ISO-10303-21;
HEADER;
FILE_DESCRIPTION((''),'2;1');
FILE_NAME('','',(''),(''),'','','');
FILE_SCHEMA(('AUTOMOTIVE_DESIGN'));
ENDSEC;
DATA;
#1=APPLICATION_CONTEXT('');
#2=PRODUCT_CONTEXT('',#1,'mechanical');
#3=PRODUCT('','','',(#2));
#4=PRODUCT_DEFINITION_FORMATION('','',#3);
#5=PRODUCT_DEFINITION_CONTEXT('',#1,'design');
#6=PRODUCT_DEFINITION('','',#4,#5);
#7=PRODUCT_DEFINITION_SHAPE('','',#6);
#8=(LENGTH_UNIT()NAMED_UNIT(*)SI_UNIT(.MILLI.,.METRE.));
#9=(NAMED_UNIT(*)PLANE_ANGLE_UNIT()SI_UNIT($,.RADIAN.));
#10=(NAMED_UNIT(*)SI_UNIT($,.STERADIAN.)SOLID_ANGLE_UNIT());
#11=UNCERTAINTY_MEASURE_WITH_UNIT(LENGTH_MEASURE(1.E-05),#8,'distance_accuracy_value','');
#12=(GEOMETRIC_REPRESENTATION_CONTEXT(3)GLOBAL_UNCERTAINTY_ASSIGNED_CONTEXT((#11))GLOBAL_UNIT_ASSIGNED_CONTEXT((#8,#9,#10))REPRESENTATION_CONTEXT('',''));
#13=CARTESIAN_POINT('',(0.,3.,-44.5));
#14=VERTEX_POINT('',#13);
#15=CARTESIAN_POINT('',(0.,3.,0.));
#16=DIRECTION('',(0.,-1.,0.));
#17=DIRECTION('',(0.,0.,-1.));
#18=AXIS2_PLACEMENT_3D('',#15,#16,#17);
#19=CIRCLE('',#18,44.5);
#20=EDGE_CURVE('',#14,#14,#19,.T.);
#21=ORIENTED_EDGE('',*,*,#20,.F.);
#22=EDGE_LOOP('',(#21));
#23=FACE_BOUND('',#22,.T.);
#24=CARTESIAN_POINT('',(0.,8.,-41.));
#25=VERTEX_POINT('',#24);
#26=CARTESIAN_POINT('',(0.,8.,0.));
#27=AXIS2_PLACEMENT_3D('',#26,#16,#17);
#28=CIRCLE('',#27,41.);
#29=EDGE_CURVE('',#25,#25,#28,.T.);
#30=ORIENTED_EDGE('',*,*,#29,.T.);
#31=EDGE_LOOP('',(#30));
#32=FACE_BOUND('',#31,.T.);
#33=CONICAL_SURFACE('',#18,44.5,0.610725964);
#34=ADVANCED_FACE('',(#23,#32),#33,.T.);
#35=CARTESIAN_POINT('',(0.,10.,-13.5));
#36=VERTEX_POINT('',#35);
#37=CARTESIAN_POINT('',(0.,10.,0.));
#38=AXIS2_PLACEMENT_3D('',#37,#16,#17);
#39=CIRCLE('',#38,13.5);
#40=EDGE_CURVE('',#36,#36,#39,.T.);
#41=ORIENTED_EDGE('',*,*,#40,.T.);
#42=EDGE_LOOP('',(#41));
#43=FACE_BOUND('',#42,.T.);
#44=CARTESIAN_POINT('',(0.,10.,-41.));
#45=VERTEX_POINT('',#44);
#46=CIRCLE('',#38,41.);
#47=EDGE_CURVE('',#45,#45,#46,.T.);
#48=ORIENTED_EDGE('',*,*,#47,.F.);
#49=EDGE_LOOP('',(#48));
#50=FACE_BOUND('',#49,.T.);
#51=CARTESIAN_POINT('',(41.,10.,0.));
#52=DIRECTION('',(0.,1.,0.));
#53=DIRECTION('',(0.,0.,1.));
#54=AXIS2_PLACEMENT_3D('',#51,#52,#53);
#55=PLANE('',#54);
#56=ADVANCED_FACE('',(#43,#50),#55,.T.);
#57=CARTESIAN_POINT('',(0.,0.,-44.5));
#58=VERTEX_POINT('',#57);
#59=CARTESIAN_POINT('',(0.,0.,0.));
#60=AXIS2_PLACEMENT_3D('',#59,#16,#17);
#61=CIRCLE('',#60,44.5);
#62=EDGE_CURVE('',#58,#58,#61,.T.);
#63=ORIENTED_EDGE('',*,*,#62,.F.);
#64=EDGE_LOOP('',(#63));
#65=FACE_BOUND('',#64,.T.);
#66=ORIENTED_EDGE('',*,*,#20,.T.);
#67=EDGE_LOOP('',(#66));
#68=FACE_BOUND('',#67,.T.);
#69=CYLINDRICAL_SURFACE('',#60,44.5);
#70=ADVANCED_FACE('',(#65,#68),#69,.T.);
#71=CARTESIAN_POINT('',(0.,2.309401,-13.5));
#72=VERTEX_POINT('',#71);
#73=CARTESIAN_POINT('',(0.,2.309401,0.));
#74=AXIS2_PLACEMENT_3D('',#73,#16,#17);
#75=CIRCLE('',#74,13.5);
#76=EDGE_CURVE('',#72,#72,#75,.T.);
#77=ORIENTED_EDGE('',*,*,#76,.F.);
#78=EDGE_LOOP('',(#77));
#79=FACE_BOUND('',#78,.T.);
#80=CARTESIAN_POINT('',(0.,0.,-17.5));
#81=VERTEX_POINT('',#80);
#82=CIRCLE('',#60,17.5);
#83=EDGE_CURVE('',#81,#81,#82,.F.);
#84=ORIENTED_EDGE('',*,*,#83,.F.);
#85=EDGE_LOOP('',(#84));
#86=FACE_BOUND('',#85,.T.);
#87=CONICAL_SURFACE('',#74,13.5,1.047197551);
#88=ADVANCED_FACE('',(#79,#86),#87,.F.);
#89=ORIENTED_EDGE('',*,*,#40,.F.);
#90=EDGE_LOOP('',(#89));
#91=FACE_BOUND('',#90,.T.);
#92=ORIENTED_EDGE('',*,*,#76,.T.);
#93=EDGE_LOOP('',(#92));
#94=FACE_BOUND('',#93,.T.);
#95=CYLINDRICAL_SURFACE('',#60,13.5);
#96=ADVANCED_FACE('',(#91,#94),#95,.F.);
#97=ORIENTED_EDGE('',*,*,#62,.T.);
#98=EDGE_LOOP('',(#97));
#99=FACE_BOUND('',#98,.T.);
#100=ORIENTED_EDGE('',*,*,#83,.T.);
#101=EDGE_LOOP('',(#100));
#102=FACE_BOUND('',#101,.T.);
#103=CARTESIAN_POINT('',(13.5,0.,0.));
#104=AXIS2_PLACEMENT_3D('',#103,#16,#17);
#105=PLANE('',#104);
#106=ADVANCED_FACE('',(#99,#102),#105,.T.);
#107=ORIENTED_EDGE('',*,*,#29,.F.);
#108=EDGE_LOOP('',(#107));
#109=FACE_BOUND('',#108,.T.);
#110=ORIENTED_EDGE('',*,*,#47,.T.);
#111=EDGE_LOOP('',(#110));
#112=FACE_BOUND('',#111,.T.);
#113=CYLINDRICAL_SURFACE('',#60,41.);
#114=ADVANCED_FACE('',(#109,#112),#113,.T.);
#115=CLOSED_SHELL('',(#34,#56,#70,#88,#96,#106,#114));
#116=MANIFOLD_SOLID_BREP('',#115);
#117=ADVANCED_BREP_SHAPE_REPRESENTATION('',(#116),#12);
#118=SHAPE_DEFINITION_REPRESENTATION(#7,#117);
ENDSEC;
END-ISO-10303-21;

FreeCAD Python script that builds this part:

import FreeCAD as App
import Part
import Sketcher
Q = App.Units.Quantity


def edges_at(feature, points):
    """Names of the edges that pass closest to the given points."""
    edges = feature.Shape.Edges
    near = lambda p: min(range(len(edges)), key=lambda i: edges[i].distToShape(Part.Vertex(*p))[0])
    return sorted({f"Edge{near(p) + 1}" for p in points})

doc = App.newDocument("Part")
params = doc.addObject("Spreadsheet::Sheet", "Params")
for row, (alias, value) in enumerate([
    ("sketch1_width", "31 mm"),
    ("sketch1_height", "3 mm"),
    ("sketch1_height2", "2 mm"),
    ("sketch1_height3", "10 mm"),
    ("sketch1_width2", "27.5 mm"),
    ("revolution_angle", "360 deg"),
    ("chamfer_size", "4 mm"),
    ("chamfer_size2", "2.309401 mm"),
], start=1):
    params.set(f"A{row}", alias)
    params.set(f"B{row}", "=" + value)
    params.setAlias(f"B{row}", alias)

body = doc.addObject("PartDesign::Body", "Body")

sketch1 = body.newObject("Sketcher::SketchObject", "Sketch")
sketch1.AttachmentSupport = (doc.getObject("XY_Plane"), [""])
sketch1.MapMode = "FlatFace"
sketch1.addGeometry([
    Part.LineSegment(App.Vector(13.5, 0, 0), App.Vector(44.5, 0, 0)),
    Part.LineSegment(App.Vector(44.5, 0, 0), App.Vector(44.5, 3, 0)),
    Part.LineSegment(App.Vector(44.5, 3, 0), App.Vector(41, 8, 0)),
    Part.LineSegment(App.Vector(41, 8, 0), App.Vector(41, 10, 0)),
    Part.LineSegment(App.Vector(41, 10, 0), App.Vector(13.5, 10, 0)),
    Part.LineSegment(App.Vector(13.5, 10, 0), App.Vector(13.5, 0, 0)),
], False)
sketch1.addConstraint([
    Sketcher.Constraint("Coincident", 0, 2, 1, 1),
    Sketcher.Constraint("Coincident", 1, 2, 2, 1),
    Sketcher.Constraint("Coincident", 2, 2, 3, 1),
    Sketcher.Constraint("Coincident", 3, 2, 4, 1),
    Sketcher.Constraint("Coincident", 4, 2, 5, 1),
    Sketcher.Constraint("Coincident", 5, 2, 0, 1),
    Sketcher.Constraint("Horizontal", 0),
    Sketcher.Constraint("Vertical", 1),
    Sketcher.Constraint("Vertical", 3),
    Sketcher.Constraint("Horizontal", 4),
    Sketcher.Constraint("Vertical", 5),
    Sketcher.Constraint("PointOnObject", 0, 2, -1),
    Sketcher.Constraint("DistanceX", 0, 1, 0, 2, Q("31 mm")),
    Sketcher.Constraint("DistanceY", 1, 1, 1, 2, Q("3 mm")),
    Sketcher.Constraint("DistanceY", 3, 1, 3, 2, Q("2 mm")),
    Sketcher.Constraint("DistanceY", 5, 2, 5, 1, Q("10 mm")),
    Sketcher.Constraint("DistanceX", 4, 2, 4, 1, Q("27.5 mm")),
    Sketcher.Constraint("DistanceX", -1, 1, 2, 2, Q("41 mm")),
])
sketch1.setExpression("Constraints[12]", "Params.sketch1_width")
sketch1.setExpression("Constraints[13]", "Params.sketch1_height")
sketch1.setExpression("Constraints[14]", "Params.sketch1_height2")
sketch1.setExpression("Constraints[15]", "Params.sketch1_height3")
sketch1.setExpression("Constraints[16]", "Params.sketch1_width2")
revolution = body.newObject("PartDesign::Revolution", "Revolution")
revolution.Profile = sketch1
revolution.ReferenceAxis = (sketch1, ["V_Axis"])
revolution.setExpression("Angle", "Params.revolution_angle")
doc.recompute()

chamfer = body.newObject("PartDesign::Chamfer", "Chamfer")
chamfer.Base = (revolution, edges_at(revolution, [(0, 0, 13.5)]))
chamfer.ChamferType = "Two distances"
chamfer.setExpression("Size", "Params.chamfer_size")
chamfer.setExpression("Size2", "Params.chamfer_size2")

doc.recompute()
